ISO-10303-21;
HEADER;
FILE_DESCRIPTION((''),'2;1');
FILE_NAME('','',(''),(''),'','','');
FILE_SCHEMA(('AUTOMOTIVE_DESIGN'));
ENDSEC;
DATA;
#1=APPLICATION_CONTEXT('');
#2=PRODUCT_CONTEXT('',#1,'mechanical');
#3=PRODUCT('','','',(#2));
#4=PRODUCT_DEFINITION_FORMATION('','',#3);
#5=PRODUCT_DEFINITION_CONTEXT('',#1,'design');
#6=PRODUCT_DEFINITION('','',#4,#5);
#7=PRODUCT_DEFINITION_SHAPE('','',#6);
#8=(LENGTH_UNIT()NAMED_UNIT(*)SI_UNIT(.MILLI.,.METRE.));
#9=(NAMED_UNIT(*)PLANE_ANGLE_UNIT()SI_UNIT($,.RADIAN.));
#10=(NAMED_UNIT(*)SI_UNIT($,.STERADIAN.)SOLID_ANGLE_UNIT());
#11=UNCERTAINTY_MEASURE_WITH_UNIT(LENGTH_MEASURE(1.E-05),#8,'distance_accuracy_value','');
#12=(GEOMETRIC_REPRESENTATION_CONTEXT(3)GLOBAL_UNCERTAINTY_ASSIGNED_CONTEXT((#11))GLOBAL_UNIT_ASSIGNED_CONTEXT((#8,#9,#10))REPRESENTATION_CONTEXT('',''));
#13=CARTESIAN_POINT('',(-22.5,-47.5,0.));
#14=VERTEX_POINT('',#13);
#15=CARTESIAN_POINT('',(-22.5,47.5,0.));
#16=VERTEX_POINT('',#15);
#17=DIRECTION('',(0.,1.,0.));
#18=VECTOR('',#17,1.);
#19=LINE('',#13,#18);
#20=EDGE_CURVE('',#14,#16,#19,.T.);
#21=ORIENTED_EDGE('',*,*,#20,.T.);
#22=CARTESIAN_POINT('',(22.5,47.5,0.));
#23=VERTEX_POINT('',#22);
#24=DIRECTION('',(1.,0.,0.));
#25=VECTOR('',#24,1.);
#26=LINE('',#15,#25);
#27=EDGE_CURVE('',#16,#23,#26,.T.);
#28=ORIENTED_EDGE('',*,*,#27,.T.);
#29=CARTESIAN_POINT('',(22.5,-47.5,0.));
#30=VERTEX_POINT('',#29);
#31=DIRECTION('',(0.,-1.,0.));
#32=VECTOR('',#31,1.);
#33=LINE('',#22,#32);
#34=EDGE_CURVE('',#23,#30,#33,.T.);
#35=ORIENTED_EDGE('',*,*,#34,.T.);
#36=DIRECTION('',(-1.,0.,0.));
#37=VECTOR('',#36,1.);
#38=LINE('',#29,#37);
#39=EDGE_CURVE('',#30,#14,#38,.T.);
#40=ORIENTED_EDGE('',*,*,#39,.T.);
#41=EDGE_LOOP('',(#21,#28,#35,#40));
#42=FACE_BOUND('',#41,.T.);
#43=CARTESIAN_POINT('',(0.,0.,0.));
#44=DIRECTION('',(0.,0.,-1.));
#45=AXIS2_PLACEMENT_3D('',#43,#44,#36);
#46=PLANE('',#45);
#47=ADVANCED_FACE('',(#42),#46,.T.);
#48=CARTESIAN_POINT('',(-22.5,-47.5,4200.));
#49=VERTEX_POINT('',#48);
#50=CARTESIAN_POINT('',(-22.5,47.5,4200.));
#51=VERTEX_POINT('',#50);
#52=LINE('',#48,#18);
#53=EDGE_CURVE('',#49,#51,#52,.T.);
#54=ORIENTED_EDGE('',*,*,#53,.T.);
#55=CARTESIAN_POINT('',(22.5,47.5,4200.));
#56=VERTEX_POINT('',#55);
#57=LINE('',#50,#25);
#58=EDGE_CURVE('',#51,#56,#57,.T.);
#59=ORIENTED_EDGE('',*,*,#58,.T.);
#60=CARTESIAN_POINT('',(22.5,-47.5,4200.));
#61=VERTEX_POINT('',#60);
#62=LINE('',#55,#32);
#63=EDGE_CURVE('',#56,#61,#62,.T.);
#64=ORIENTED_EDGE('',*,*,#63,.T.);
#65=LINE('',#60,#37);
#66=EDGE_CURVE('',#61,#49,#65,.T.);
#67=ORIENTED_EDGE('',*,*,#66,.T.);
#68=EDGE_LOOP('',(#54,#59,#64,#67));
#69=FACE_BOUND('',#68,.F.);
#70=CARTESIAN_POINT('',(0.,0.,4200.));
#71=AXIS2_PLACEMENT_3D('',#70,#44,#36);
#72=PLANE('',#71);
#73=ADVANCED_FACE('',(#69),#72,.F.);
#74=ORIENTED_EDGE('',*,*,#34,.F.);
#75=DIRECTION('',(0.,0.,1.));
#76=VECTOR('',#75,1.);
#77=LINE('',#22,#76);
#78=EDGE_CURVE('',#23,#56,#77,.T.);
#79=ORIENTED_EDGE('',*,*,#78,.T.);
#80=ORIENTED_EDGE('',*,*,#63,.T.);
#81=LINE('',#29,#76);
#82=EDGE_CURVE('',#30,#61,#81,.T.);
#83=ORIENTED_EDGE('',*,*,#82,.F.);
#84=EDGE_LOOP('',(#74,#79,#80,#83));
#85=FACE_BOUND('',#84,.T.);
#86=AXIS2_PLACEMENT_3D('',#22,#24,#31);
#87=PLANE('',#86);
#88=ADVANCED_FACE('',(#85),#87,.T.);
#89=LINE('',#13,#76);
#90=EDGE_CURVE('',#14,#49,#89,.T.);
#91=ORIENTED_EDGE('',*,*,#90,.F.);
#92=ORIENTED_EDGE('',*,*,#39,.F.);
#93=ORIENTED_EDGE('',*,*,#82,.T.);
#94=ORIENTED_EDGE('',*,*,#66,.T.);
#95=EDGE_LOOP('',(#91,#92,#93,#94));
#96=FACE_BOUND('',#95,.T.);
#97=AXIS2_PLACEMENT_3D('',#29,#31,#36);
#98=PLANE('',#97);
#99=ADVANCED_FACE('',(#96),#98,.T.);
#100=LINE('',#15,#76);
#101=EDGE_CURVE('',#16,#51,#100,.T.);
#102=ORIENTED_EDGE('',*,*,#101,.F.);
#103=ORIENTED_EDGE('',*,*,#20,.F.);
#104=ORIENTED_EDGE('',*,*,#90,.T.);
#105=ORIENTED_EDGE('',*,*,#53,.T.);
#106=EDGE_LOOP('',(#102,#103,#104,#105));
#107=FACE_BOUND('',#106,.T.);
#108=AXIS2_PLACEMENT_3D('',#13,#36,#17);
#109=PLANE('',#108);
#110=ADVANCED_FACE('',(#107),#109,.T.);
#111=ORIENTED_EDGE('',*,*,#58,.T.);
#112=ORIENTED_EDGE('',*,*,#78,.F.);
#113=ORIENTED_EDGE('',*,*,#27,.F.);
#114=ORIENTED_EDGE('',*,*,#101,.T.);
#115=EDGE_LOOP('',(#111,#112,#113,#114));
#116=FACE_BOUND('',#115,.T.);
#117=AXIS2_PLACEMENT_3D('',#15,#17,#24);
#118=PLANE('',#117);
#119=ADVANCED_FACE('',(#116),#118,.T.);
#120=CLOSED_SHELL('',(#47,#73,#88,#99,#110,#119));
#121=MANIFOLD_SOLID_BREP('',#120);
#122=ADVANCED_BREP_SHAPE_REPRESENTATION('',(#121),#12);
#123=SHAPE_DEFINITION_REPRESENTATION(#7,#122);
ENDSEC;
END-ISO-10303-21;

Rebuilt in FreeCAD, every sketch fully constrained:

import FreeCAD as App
import Part
import Sketcher
Q = App.Units.Quantity

doc = App.newDocument("Part")
body = doc.addObject("PartDesign::Body", "Body")

sketch1 = body.newObject("Sketcher::SketchObject", "Sketch")
sketch1.AttachmentSupport = (doc.getObject("XY_Plane"), [""])
sketch1.MapMode = "FlatFace"
sketch1.addGeometry([
    Part.LineSegment(App.Vector(22, 48, 0), App.Vector(22, -48, 0)),
    Part.LineSegment(App.Vector(22, -48, 0), App.Vector(-22, -48, 0)),
    Part.LineSegment(App.Vector(-22, -48, 0), App.Vector(-22, 48, 0)),
    Part.LineSegment(App.Vector(-22, 48, 0), App.Vector(22, 48, 0)),
], False)
sketch1.addConstraint([
    Sketcher.Constraint("Coincident", 0, 2, 1, 1),
    Sketcher.Constraint("Coincident", 1, 2, 2, 1),
    Sketcher.Constraint("Coincident", 2, 2, 3, 1),
    Sketcher.Constraint("Coincident", 3, 2, 0, 1),
    Sketcher.Constraint("Vertical", 0),
    Sketcher.Constraint("Horizontal", 1),
    Sketcher.Constraint("Vertical", 2),
    Sketcher.Constraint("Horizontal", 3),
    Sketcher.Constraint("Symmetric", 0, 2, 2, 2, -1, 1),
    Sketcher.Constraint("DistanceX", 1, 2, 1, 1, Q("45 mm")),
    Sketcher.Constraint("DistanceY", 0, 2, 0, 1, Q("95 mm")),
])
pad1 = body.newObject("PartDesign::Pad", "Pad")
pad1.Profile = sketch1
pad1.Length = 4200

doc.recompute()
